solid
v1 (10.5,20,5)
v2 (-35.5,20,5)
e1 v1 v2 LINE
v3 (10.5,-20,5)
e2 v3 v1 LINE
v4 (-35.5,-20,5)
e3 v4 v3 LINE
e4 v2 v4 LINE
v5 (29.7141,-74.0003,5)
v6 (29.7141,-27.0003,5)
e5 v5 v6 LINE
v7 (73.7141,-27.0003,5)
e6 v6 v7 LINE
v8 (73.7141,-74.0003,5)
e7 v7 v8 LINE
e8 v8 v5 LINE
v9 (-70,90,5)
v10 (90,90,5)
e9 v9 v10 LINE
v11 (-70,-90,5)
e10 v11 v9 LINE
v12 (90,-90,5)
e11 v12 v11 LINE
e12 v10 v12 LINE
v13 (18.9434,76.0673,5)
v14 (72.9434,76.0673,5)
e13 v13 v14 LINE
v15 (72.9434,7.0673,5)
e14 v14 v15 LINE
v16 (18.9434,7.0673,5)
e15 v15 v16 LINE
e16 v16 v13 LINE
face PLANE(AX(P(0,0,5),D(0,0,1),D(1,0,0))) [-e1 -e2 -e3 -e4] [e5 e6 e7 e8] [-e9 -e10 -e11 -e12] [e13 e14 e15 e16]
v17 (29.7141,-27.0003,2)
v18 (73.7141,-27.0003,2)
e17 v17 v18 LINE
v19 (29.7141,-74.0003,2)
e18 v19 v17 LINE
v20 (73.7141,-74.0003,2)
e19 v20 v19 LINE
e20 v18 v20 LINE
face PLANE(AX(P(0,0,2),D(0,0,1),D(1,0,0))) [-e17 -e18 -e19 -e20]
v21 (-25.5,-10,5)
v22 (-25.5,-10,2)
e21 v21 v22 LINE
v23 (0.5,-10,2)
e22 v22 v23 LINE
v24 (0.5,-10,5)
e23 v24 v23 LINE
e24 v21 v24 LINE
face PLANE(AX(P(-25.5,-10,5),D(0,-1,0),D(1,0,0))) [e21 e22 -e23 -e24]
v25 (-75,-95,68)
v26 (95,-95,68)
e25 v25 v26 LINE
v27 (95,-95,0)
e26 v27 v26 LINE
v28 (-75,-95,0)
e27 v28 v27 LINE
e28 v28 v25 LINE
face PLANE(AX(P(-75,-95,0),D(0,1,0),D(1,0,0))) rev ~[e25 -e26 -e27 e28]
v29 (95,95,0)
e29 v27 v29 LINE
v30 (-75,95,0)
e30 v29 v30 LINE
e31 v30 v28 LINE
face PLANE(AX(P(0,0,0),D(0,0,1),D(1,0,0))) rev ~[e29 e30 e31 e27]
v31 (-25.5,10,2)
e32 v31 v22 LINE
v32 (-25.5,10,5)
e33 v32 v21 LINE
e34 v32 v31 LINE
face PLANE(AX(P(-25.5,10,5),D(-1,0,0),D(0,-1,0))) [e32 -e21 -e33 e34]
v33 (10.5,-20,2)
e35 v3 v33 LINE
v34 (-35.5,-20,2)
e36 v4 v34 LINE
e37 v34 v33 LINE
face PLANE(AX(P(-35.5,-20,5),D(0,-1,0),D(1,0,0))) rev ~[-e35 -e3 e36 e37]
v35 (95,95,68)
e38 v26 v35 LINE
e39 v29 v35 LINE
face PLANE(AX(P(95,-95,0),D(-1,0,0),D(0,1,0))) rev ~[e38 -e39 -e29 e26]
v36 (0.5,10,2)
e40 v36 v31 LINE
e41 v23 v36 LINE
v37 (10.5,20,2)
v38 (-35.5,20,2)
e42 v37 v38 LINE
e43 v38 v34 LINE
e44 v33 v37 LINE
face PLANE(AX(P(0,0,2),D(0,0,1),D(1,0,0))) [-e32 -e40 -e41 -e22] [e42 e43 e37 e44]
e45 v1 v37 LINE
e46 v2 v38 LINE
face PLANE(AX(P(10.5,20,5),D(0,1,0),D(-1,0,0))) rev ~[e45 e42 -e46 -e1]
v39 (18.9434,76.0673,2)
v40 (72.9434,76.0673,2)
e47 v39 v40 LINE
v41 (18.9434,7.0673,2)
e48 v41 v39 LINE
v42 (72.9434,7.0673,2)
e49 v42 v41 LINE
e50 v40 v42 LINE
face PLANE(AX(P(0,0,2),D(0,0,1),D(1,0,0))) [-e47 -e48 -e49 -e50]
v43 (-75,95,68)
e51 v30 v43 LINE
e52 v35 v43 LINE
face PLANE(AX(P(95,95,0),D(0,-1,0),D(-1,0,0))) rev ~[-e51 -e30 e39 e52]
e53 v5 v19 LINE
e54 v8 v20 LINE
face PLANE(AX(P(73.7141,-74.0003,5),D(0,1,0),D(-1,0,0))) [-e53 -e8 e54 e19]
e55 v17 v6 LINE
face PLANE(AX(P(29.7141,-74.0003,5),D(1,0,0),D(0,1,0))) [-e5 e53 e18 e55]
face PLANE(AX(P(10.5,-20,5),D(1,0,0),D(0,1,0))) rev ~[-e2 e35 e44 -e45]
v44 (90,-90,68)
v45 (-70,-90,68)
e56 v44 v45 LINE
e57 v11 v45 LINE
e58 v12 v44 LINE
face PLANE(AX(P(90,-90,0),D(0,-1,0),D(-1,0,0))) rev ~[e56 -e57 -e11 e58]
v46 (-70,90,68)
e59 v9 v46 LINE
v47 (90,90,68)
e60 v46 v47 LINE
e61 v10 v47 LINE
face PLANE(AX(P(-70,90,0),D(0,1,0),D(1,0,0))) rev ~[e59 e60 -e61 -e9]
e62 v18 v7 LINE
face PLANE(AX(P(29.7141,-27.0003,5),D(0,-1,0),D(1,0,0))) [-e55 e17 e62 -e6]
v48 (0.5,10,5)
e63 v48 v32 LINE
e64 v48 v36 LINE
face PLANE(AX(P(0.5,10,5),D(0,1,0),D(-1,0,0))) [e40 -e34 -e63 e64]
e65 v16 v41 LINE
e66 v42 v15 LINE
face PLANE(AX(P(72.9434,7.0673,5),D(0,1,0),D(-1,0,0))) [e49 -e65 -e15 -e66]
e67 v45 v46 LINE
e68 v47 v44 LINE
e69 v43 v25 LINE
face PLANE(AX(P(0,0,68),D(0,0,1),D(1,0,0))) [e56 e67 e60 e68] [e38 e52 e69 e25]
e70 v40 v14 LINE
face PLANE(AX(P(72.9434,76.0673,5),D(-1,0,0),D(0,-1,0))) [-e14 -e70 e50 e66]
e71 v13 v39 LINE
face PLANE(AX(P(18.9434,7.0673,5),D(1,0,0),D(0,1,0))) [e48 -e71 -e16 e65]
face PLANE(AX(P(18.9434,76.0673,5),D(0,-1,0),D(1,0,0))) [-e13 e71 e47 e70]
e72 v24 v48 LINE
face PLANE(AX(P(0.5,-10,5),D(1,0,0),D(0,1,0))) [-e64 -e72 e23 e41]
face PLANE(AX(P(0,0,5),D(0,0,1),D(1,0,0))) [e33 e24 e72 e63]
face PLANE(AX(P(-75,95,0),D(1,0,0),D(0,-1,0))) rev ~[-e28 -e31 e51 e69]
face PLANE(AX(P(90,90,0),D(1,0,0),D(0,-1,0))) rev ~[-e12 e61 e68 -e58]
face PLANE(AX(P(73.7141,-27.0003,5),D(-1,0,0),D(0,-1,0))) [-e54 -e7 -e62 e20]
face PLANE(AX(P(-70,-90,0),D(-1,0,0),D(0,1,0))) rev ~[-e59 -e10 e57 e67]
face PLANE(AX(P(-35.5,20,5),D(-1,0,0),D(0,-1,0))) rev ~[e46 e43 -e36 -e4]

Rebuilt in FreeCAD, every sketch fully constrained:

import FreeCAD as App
import Part
import Sketcher
from FreeCAD import Vector


def add_polygon(sketch, points):
    """Adds a closed chain of lines whose ends are joined by coincident constraints."""
    first, n = sketch.GeometryCount, len(points)
    for a, b in zip(points, points[1:] + points[:1]):
        sketch.addGeometry(Part.LineSegment(App.Vector(*a, 0), App.Vector(*b, 0)), False)
    for i in range(n):
        sketch.addConstraint(Sketcher.Constraint("Coincident", first + i, 2, first + (i + 1) % n, 1))

doc = App.newDocument("Part")
params = doc.addObject("Spreadsheet::Sheet", "Params")
for row, (alias, value) in enumerate([
    ("sketch1_height", "180 mm"),
    ("pad1_length", "68 mm"),
    ("sketch2_height", "180 mm"),
    ("pad2_length", "5 mm"),
    ("sketch3_width", "44 mm"),
    ("sketch3_width2", "54 mm"),
    ("sketch3_height", "47 mm"),
    ("sketch3_height2", "69 mm"),
    ("pocket1_length", "1.5 mm"),
    ("sketch4_width", "44 mm"),
    ("sketch4_width2", "54 mm"),
    ("sketch4_width3", "46 mm"),
    ("sketch4_width4", "26 mm"),
    ("sketch4_height", "47 mm"),
    ("pocket2_length", "3 mm"),
], start=1):
    params.set(f"A{row}", alias)
    params.set(f"B{row}", "=" + value)
    params.setAlias(f"B{row}", alias)

body = doc.addObject("PartDesign::Body", "Body")

sketch1 = body.newObject("Sketcher::SketchObject", "Sketch")
sketch1.AttachmentSupport = (doc.getObject("XY_Plane"), [""])
sketch1.MapMode = "FlatFace"
add_polygon(sketch1, [(95, -95), (95, 95), (-75, 95), (-75, -95)])
add_polygon(sketch1, [(90, 90), (90, -90), (-70, -90), (-70, 90)])
sketch1.addConstraint([
    Sketcher.Constraint("Vertical", 0),
    Sketcher.Constraint("Horizontal", 1),
    Sketcher.Constraint("Vertical", 2),
    Sketcher.Constraint("Horizontal", 3),
    Sketcher.Constraint("Vertical", 4),
    Sketcher.Constraint("Horizontal", 5),
    Sketcher.Constraint("Vertical", 6),
    Sketcher.Constraint("Horizontal", 7),
    Sketcher.Constraint("DistanceY", 4, 2, 4, 1, 180.0),
    Sketcher.Constraint("DistanceX", -1, 1, 4, 2, 90.0),
    Sketcher.Constraint("DistanceY", 4, 2, -1, 1, 90.0),
    Sketcher.Constraint("DistanceX", 5, 2, -1, 1, 70.0),
    Sketcher.Constraint("DistanceX", 4, 2, 3, 2, 5.0),
    Sketcher.Constraint("DistanceY", 3, 2, 4, 2, 5.0),
    Sketcher.Constraint("DistanceX", 2, 2, 5, 2, 5.0),
    Sketcher.Constraint("DistanceY", 6, 2, 1, 2, 5.0),
])
sketch1.setExpression("Constraints[16]", "Params.sketch1_height")
pad1 = body.newObject("PartDesign::Pad", "Pad")
pad1.Profile = sketch1
pad1.setExpression("Length", "Params.pad1_length")

sketch2 = body.newObject("Sketcher::SketchObject", "Sketch001")
sketch2.AttachmentSupport = (doc.getObject("XY_Plane"), [""])
sketch2.MapMode = "FlatFace"
add_polygon(sketch2, [(-70, -90), (90, -90), (90, 90), (-70, 90)])
sketch2.addConstraint([
    Sketcher.Constraint("Horizontal", 0),
    Sketcher.Constraint("Vertical", 1),
    Sketcher.Constraint("Horizontal", 2),
    Sketcher.Constraint("Vertical", 3),
    Sketcher.Constraint("DistanceY", 1, 1, 1, 2, 180.0),
    Sketcher.Constraint("DistanceX", -1, 1, 0, 2, 90.0),
    Sketcher.Constraint("DistanceY", 0, 2, -1, 1, 90.0),
    Sketcher.Constraint("DistanceX", 2, 2, -1, 1, 70.0),
])
sketch2.setExpression("Constraints[8]", "Params.sketch2_height")
pad2 = body.newObject("PartDesign::Pad", "Pad001")
pad2.Profile = sketch2
pad2.setExpression("Length", "Params.pad2_length")

sketch3 = body.newObject("Sketcher::SketchObject", "Sketch002")
sketch3.AttachmentSupport = (doc.getObject("XY_Plane"), [""])
sketch3.MapMode = "FlatFace"
sketch3.AttachmentOffset = App.Placement(Vector(0, 0, 5), App.Rotation())
add_polygon(sketch3, [(74, -27), (30, -27), (30, -74), (74, -74)])
add_polygon(sketch3, [(73, 7), (73, 76), (19, 76), (19, 7)])
sketch3.addConstraint([
    Sketcher.Constraint("Horizontal", 0),
    Sketcher.Constraint("Vertical", 1),
    Sketcher.Constraint("Horizontal", 2),
    Sketcher.Constraint("Vertical", 3),
    Sketcher.Constraint("Vertical", 4),
    Sketcher.Constraint("Horizontal", 5),
    Sketcher.Constraint("Vertical", 6),
    Sketcher.Constraint("Horizontal", 7),
    Sketcher.Constraint("DistanceX", 0, 2, 0, 1, 44.0),
    Sketcher.Constraint("DistanceX", 5, 2, 5, 1, 54.0),
    Sketcher.Constraint("DistanceY", 1, 2, 1, 1, 47.0),
    Sketcher.Constraint("DistanceY", 4, 1, 4, 2, 69.0),
    Sketcher.Constraint("DistanceX", -1, 1, 0, 2, 29.714),
    Sketcher.Constraint("DistanceY", 0, 2, -1, 1, 27.0003),
    Sketcher.Constraint("DistanceX", -1, 1, 4, 2, 72.9434),
    Sketcher.Constraint("DistanceY", -1, 1, 4, 2, 76.0673),
])
sketch3.setExpression("Constraints[16]", "Params.sketch3_width")
sketch3.setExpression("Constraints[17]", "Params.sketch3_width2")
sketch3.setExpression("Constraints[18]", "Params.sketch3_height")
sketch3.setExpression("Constraints[19]", "Params.sketch3_height2")
pocket1 = body.newObject("PartDesign::Pocket", "Pocket")
pocket1.Profile = sketch3
pocket1.setExpression("Length", "Params.pocket1_length")

sketch4 = body.newObject("Sketcher::SketchObject", "Sketch003")
sketch4.AttachmentSupport = (doc.getObject("XY_Plane"), [""])
sketch4.MapMode = "FlatFace"
sketch4.AttachmentOffset = App.Placement(Vector(0, 0, 5), App.Rotation())
add_polygon(sketch4, [(74, -27), (30, -27), (30, -74), (74, -74)])
add_polygon(sketch4, [(73, 7), (73, 76), (19, 76), (19, 7)])
add_polygon(sketch4, [(-36, 20), (-36, -20), (10, -20), (10, 20)])
add_polygon(sketch4, [(0, -10), (-26, -10), (-26, 10), (0, 10)])
sketch4.addConstraint([
    Sketcher.Constraint("Horizontal", 0),
    Sketcher.Constraint("Vertical", 1),
    Sketcher.Constraint("Horizontal", 2),
    Sketcher.Constraint("Vertical", 3),
    Sketcher.Constraint("Vertical", 4),
    Sketcher.Constraint("Horizontal", 5),
    Sketcher.Constraint("Vertical", 6),
    Sketcher.Constraint("Horizontal", 7),
    Sketcher.Constraint("Vertical", 8),
    Sketcher.Constraint("Horizontal", 9),
    Sketcher.Constraint("Vertical", 10),
    Sketcher.Constraint("Horizontal", 11),
    Sketcher.Constraint("Horizontal", 12),
    Sketcher.Constraint("Vertical", 13),
    Sketcher.Constraint("Horizontal", 14),
    Sketcher.Constraint("Vertical", 15),
    Sketcher.Constraint("DistanceX", 0, 2, 0, 1, 44.0),
    Sketcher.Constraint("DistanceX", 5, 2, 5, 1, 54.0),
    Sketcher.Constraint("DistanceX", 9, 1, 9, 2, 46.0),
    Sketcher.Constraint("DistanceX", 12, 2, 12, 1, 26.0),
    Sketcher.Constraint("DistanceY", 1, 2, 1, 1, 47.0),
    Sketcher.Constraint("DistanceY", 4, 1, 4, 2, 69.0),
    Sketcher.Constraint("DistanceY", 8, 2, 8, 1, 40.0),
    Sketcher.Constraint("DistanceY", 13, 1, 13, 2, 20.0),
    Sketcher.Constraint("DistanceY", 8, 2, -1, 1, 20.0),
    Sketcher.Constraint("DistanceY", 12, 2, -1, 1, 10.0),
    Sketcher.Constraint("DistanceX", 8, 2, 12, 2, 10.0),
    Sketcher.Constraint("DistanceX", -1, 1, 14, 2, 0.5),
    Sketcher.Constraint("DistanceY", 1, 2, 8, 2, 54.0003),
    Sketcher.Constraint("DistanceX", -1, 1, 0, 2, 29.714),
    Sketcher.Constraint("DistanceX", -1, 1, 4, 2, 72.9434),
    Sketcher.Constraint("DistanceY", -1, 1, 4, 2, 76.0673),
])
sketch4.setExpression("Constraints[32]", "Params.sketch4_width")
sketch4.setExpression("Constraints[33]", "Params.sketch4_width2")
sketch4.setExpression("Constraints[34]", "Params.sketch4_width3")
sketch4.setExpression("Constraints[35]", "Params.sketch4_width4")
sketch4.setExpression("Constraints[36]", "Params.sketch4_height")
pocket2 = body.newObject("PartDesign::Pocket", "Pocket001")
pocket2.Profile = sketch4
pocket2.setExpression("Length", "Params.pocket2_length")

doc.recompute()
